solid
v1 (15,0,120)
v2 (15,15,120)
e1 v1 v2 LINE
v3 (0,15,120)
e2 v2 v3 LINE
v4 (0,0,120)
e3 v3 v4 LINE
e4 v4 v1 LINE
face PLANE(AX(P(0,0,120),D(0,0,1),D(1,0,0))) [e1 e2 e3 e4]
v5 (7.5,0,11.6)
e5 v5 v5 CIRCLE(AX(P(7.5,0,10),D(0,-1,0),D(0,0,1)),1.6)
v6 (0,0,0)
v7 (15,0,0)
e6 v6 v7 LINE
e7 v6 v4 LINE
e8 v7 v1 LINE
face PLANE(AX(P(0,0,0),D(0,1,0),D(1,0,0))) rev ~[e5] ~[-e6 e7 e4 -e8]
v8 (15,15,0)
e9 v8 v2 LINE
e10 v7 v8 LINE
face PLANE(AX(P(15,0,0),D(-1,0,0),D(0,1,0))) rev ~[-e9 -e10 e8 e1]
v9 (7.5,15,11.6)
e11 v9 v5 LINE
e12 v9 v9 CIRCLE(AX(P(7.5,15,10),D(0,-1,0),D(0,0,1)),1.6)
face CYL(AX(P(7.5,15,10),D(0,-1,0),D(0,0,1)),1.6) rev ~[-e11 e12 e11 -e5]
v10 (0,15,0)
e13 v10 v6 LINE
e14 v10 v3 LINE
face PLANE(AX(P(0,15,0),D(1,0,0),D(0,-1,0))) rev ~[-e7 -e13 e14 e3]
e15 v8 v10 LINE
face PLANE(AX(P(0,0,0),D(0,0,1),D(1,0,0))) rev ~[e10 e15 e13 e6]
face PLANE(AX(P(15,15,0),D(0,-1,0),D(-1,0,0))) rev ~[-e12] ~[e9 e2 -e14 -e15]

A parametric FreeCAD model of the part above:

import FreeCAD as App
import Part
import Sketcher
Q = App.Units.Quantity

doc = App.newDocument("Part")
params = doc.addObject("Spreadsheet::Sheet", "Params")
for row, (alias, value) in enumerate([
    ("sketch1_width", "15 mm"),
    ("pad1_length", "120 mm"),
    ("sketch2_diameter", "3.2 mm"),
    ("hole_diameter", "3.2 mm"),
], start=1):
    params.set(f"A{row}", alias)
    params.set(f"B{row}", "=" + value)
    params.setAlias(f"B{row}", alias)

body = doc.addObject("PartDesign::Body", "Body")

sketch1 = doc.addObject("Sketcher::SketchObject", "Sketch")
body.addObject(sketch1)
sketch1.AttachmentSupport = (doc.XY_Plane, [""])
sketch1.MapMode = "FlatFace"
sketch1.addGeometry([
    Part.LineSegment(App.Vector(0, 15, 0), App.Vector(0, 0, 0)),
    Part.LineSegment(App.Vector(0, 0, 0), App.Vector(15, 0, 0)),
    Part.LineSegment(App.Vector(15, 0, 0), App.Vector(15, 15, 0)),
    Part.LineSegment(App.Vector(15, 15, 0), App.Vector(0, 15, 0)),
], False)
sketch1.addConstraint([
    Sketcher.Constraint("Coincident", 0, 2, 1, 1),
    Sketcher.Constraint("Coincident", 1, 2, 2, 1),
    Sketcher.Constraint("Coincident", 2, 2, 3, 1),
    Sketcher.Constraint("Coincident", 3, 2, 0, 1),
    Sketcher.Constraint("Vertical", 0),
    Sketcher.Constraint("Horizontal", 1),
    Sketcher.Constraint("Vertical", 2),
    Sketcher.Constraint("Horizontal", 3),
    Sketcher.Constraint("Coincident", 0, 2, -1, 1),
    Sketcher.Constraint("Equal", 3, 0),
    Sketcher.Constraint("DistanceX", 1, 1, 1, 2, Q("15 mm")),
])
sketch1.setExpression("Constraints[10]", "Params.sketch1_width")
pad1 = doc.addObject("PartDesign::Pad", "Pad")
body.addObject(pad1)
pad1.Profile = sketch1
pad1.setExpression("Length", "Params.pad1_length")

sketch2 = doc.addObject("Sketcher::SketchObject", "Sketch001")
body.addObject(sketch2)
sketch2.AttachmentSupport = (doc.XZ_Plane, [""])
sketch2.MapMode = "FlatFace"
sketch2.AttachmentOffset = App.Placement(App.Vector(0, 0, -15), App.Rotation())
sketch2.addGeometry(Part.Circle(App.Vector(7.5, 10, 0), App.Vector(0, 0, 1), 1.6), False)
sketch2.addConstraint([
    Sketcher.Constraint("Diameter", 0, Q("3.2 mm")),
    Sketcher.Constraint("DistanceY", -1, 1, 0, 3, Q("10 mm")),
    Sketcher.Constraint("DistanceX", -1, 1, 0, 3, Q("7.5 mm")),
])
sketch2.setExpression("Constraints[0]", "Params.sketch2_diameter")
doc.recompute()
hole = doc.addObject("PartDesign::Hole", "Hole")
body.addObject(hole)
hole.Profile = sketch2
hole.ThreadType = "None"
hole.setExpression("Diameter", "Params.hole_diameter")
hole.DepthType = "ThroughAll"
hole.Reversed = True

doc.recompute()
